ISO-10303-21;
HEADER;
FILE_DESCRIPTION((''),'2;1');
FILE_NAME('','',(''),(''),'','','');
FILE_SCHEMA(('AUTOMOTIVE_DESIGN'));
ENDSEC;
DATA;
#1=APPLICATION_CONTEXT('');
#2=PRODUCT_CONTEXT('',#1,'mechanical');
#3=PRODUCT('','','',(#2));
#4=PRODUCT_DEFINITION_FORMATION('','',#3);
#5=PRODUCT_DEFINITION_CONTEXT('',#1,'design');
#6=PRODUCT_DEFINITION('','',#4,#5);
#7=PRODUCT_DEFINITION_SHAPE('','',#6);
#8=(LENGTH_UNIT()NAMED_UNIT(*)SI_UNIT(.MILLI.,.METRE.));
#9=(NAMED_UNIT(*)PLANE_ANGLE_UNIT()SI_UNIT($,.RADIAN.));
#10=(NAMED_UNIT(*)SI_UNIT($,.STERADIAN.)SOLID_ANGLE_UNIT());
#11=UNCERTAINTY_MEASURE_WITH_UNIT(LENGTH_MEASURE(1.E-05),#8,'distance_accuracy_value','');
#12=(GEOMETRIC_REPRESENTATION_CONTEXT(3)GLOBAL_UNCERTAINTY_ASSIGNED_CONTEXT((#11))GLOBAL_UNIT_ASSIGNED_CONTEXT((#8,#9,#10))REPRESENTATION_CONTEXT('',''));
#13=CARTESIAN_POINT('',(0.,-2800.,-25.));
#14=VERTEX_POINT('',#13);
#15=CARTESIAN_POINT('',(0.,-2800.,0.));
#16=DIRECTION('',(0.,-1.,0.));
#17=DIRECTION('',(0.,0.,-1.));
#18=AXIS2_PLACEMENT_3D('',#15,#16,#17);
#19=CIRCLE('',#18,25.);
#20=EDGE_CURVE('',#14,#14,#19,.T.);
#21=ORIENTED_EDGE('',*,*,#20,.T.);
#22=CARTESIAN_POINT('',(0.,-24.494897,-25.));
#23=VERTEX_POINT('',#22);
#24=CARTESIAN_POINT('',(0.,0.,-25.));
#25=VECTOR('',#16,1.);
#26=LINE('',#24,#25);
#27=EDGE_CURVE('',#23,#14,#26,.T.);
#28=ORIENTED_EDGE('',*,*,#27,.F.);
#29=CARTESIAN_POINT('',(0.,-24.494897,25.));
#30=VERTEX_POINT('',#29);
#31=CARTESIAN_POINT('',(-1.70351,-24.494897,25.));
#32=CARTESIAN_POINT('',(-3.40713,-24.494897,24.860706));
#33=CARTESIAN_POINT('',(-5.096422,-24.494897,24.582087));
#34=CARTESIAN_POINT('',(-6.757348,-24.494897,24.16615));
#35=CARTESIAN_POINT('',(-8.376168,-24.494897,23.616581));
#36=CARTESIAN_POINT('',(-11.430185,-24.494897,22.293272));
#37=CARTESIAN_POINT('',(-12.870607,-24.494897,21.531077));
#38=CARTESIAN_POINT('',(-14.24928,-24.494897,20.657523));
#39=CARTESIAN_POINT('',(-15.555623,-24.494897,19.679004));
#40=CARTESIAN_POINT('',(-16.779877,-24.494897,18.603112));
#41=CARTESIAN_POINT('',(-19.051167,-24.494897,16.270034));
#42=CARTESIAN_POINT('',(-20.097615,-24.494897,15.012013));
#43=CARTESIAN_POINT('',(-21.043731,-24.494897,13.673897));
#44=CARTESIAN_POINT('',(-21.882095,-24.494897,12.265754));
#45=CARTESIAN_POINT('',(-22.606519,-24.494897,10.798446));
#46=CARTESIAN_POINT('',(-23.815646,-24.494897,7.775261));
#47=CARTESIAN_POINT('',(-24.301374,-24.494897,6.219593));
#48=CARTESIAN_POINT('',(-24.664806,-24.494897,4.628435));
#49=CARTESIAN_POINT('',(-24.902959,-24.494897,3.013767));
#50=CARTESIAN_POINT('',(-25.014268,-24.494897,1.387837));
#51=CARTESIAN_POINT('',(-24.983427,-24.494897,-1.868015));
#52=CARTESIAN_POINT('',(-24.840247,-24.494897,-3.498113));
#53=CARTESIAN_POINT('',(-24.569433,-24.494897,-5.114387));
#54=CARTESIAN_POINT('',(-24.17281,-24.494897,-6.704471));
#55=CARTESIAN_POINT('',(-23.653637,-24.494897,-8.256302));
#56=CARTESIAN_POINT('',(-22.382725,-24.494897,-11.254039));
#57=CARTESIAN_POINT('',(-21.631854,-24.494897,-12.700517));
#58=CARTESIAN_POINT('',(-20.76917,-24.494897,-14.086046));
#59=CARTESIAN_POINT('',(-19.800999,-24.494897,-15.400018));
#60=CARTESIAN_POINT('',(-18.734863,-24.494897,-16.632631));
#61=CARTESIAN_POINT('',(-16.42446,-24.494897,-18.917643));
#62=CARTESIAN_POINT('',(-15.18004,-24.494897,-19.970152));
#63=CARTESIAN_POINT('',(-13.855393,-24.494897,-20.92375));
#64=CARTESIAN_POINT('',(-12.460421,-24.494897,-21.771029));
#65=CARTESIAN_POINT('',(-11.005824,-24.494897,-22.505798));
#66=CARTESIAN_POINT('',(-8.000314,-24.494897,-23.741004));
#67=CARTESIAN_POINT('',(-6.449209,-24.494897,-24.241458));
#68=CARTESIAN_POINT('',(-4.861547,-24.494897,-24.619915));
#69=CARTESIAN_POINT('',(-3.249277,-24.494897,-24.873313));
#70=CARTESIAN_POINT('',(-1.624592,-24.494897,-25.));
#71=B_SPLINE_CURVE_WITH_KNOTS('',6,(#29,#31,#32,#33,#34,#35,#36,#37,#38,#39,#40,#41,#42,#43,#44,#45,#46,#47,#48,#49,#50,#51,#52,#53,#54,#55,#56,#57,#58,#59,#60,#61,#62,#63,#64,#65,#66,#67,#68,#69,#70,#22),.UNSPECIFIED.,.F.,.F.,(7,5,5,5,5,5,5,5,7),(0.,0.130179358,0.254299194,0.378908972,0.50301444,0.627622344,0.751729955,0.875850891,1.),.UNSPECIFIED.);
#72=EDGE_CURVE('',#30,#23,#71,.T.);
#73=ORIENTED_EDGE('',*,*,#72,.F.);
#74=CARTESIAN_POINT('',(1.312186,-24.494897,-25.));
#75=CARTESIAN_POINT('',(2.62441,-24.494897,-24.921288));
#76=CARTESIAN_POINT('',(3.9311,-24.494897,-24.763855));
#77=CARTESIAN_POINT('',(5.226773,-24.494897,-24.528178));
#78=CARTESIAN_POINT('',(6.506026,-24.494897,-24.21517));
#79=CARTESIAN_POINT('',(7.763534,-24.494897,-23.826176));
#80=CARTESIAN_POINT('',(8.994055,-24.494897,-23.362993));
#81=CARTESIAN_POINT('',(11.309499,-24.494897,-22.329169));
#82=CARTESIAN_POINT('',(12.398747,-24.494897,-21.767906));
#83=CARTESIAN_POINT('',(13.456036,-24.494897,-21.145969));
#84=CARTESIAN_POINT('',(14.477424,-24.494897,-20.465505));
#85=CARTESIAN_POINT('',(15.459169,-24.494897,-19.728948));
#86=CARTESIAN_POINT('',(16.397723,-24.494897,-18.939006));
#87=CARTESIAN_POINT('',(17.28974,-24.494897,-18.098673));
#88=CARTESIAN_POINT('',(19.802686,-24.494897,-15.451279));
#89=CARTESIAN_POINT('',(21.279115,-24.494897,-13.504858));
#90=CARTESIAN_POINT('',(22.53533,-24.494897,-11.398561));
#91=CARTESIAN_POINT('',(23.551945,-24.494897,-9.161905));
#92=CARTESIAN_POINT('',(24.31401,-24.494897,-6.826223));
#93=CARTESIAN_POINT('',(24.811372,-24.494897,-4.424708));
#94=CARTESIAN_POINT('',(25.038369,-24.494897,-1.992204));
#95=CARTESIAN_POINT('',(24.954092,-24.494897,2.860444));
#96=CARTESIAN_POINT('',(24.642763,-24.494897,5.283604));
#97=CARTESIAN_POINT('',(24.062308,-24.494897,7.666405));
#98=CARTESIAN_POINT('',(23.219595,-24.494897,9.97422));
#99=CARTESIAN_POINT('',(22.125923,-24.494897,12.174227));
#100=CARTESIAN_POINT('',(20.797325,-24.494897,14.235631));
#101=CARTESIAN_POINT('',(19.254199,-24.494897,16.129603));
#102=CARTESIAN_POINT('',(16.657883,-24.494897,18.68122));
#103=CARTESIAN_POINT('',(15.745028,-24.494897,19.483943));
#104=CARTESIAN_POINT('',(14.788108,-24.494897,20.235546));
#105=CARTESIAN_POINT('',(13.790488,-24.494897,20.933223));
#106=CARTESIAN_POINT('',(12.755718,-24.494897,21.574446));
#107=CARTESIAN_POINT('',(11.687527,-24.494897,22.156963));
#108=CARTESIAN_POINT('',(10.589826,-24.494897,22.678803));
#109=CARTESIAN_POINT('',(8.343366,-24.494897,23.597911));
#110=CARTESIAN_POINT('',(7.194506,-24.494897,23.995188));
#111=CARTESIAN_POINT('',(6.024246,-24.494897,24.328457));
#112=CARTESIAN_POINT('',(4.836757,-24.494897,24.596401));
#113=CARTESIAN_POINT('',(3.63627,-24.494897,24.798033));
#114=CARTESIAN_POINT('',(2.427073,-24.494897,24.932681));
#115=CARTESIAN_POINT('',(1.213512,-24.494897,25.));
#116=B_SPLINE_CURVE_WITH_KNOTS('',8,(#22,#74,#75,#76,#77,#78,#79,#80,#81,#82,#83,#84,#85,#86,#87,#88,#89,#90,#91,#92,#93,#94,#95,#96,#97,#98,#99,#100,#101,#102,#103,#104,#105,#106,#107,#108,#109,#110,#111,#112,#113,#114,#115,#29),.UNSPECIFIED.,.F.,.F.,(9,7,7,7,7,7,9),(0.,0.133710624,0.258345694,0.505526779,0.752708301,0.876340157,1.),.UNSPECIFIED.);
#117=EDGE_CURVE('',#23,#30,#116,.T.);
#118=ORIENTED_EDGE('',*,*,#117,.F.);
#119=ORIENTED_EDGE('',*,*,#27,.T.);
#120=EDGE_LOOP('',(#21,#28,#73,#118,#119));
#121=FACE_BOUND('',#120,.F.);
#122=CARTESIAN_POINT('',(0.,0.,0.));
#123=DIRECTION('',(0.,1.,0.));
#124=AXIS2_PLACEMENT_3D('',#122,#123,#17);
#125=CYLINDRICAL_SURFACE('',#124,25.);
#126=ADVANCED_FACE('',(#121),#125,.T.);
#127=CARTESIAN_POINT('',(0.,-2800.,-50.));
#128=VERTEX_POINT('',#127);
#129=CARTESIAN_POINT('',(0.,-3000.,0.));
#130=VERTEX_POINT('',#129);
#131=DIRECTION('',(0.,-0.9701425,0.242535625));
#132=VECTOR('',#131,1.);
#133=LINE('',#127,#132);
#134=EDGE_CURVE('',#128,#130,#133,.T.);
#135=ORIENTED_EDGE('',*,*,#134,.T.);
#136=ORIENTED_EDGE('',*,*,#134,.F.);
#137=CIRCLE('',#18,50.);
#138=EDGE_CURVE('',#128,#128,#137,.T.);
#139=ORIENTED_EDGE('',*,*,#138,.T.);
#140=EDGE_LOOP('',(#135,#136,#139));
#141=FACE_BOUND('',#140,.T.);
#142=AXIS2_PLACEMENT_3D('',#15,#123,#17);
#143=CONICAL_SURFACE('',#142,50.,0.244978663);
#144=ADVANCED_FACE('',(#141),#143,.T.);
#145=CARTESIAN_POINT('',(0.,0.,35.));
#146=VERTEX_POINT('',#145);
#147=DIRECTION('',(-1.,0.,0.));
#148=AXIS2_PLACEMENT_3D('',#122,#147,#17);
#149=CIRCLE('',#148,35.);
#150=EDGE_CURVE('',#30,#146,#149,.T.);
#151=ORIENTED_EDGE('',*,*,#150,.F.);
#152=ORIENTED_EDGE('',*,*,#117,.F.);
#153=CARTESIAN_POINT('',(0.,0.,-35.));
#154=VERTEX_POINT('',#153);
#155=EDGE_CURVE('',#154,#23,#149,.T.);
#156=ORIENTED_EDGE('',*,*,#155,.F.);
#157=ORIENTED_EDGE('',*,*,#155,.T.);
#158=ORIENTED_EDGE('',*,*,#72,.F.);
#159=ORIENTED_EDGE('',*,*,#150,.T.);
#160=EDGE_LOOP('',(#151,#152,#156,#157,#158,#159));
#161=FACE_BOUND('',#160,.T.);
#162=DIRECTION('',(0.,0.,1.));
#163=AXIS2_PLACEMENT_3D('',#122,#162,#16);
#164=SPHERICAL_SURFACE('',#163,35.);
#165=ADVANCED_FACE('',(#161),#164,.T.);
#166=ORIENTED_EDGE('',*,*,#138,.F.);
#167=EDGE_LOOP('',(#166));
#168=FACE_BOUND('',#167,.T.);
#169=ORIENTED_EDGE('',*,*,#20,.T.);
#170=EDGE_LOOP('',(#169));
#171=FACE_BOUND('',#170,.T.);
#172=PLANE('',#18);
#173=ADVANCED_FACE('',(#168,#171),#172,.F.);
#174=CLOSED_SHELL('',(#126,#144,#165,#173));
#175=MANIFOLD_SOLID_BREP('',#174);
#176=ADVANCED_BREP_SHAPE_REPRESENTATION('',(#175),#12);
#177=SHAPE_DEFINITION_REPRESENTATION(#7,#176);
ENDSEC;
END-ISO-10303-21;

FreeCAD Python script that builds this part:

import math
import FreeCAD as App
import Part
import Sketcher
Q = App.Units.Quantity

doc = App.newDocument("Part")
params = doc.addObject("Spreadsheet::Sheet", "Params")
for row, (alias, value) in enumerate([
    ("sketch1_radius", "35 mm"),
    ("revolution_angle", "360 deg"),
    ("sketch2_width", "200 mm"),
    ("sketch2_height", "50 mm"),
    ("revolution2_angle", "360 deg"),
    ("sketch3_diameter", "50 mm"),
    ("pad1_length", "2800 mm"),
], start=1):
    params.set(f"A{row}", alias)
    params.set(f"B{row}", "=" + value)
    params.setAlias(f"B{row}", alias)

body = doc.addObject("PartDesign::Body", "Body")

# Sketch on XZ plane
sketch1 = body.newObject("Sketcher::SketchObject", "Sketch")
sketch1.AttachmentSupport = (doc.getObject("XZ_Plane"), [""])
sketch1.MapMode = "FlatFace"
sketch1.addGeometry(Part.ArcOfCircle(Part.Circle(App.Vector(0, 0, 0), App.Vector(0, 0, 1), 35), math.radians(-90), math.radians(90)), False)
sketch1.addGeometry(Part.LineSegment(App.Vector(0, 35, 0), App.Vector(0, -35, 0)), False)
sketch1.addConstraint(Sketcher.Constraint("Coincident", 0, 1, 1, 2))
sketch1.addConstraint(Sketcher.Constraint("Coincident", 1, 1, 0, 2))
sketch1.addConstraint(Sketcher.Constraint("Vertical", 1))
sketch1.addConstraint(Sketcher.Constraint("Coincident", 0, 3, -1, 1))
sketch1.addConstraint(Sketcher.Constraint("PointOnObject", 0, 1, -2))
sketch1.addConstraint(Sketcher.Constraint("Radius", 0, Q("35 mm")))
sketch1.setExpression("Constraints[5]", "Params.sketch1_radius")
revolution = body.newObject("PartDesign::Revolution", "Revolution")
revolution.Profile = sketch1
revolution.ReferenceAxis = (sketch1, ["V_Axis"])
revolution.setExpression("Angle", "Params.revolution_angle")
body2 = doc.addObject("PartDesign::Body", "Body001")

# Sketch on XZ plane
sketch2 = body2.newObject("Sketcher::SketchObject", "Sketch001")
sketch2.AttachmentSupport = (doc.getObject("XZ_Plane001"), [""])
sketch2.MapMode = "FlatFace"
sketch2.addGeometry(Part.LineSegment(App.Vector(2800, 0, 0), App.Vector(2800, -50, 0)), False)
sketch2.addGeometry(Part.LineSegment(App.Vector(2800, -50, 0), App.Vector(3000, 0, 0)), False)
sketch2.addGeometry(Part.LineSegment(App.Vector(3000, 0, 0), App.Vector(2800, 0, 0)), False)
sketch2.addConstraint(Sketcher.Constraint("Coincident", 0, 2, 1, 1))
sketch2.addConstraint(Sketcher.Constraint("Coincident", 1, 2, 2, 1))
sketch2.addConstraint(Sketcher.Constraint("Coincident", 2, 2, 0, 1))
sketch2.addConstraint(Sketcher.Constraint("Vertical", 0))
sketch2.addConstraint(Sketcher.Constraint("Horizontal", 2))
sketch2.addConstraint(Sketcher.Constraint("PointOnObject", 1, 2, -1))
sketch2.addConstraint(Sketcher.Constraint("DistanceX", 2, 2, 2, 1, Q("200 mm")))
sketch2.addConstraint(Sketcher.Constraint("DistanceY", 0, 2, 0, 1, Q("50 mm")))
sketch2.addConstraint(Sketcher.Constraint("DistanceX", -1, 1, 0, 2, Q("2800 mm")))
sketch2.setExpression("Constraints[6]", "Params.sketch2_width")
sketch2.setExpression("Constraints[7]", "Params.sketch2_height")
revolution2 = body2.newObject("PartDesign::Revolution", "Revolution001")
revolution2.Profile = sketch2
revolution2.ReferenceAxis = (sketch2, ["H_Axis"])
revolution2.setExpression("Angle", "Params.revolution2_angle")
body3 = doc.addObject("PartDesign::Body", "Body002")

# Sketch on YZ plane
sketch3 = body3.newObject("Sketcher::SketchObject", "Sketch002")
sketch3.AttachmentSupport = (doc.getObject("YZ_Plane002"), [""])
sketch3.MapMode = "FlatFace"
sketch3.addGeometry(Part.Circle(App.Vector(0, 0, 0), App.Vector(0, 0, 1), 25), False)
sketch3.addConstraint(Sketcher.Constraint("Coincident", 0, 3, -1, 1))
sketch3.addConstraint(Sketcher.Constraint("Diameter", 0, Q("50 mm")))
sketch3.setExpression("Constraints[1]", "Params.sketch3_diameter")
pad1 = body3.newObject("PartDesign::Pad", "Pad")
pad1.Profile = sketch3
pad1.setExpression("Length", "Params.pad1_length")
doc.recompute()

boolean = body3.newObject("PartDesign::Boolean", "Boolean")
boolean.Type = "Fuse"
boolean.addObjects([body])
doc.recompute()

boolean2 = body3.newObject("PartDesign::Boolean", "Boolean001")
boolean2.Type = "Fuse"
boolean2.addObjects([body2])
body4 = doc.addObject("PartDesign::Body", "Body003")
doc.recompute()

body3.Placement = App.Placement(App.Vector(0, 0, 0), App.Rotation(App.Vector(0, 0, -1), 90))
boolean3 = body4.newObject("PartDesign::Boolean", "Boolean002")
boolean3.Type = "Fuse"
boolean3.addObjects([body3])

doc.recompute()
